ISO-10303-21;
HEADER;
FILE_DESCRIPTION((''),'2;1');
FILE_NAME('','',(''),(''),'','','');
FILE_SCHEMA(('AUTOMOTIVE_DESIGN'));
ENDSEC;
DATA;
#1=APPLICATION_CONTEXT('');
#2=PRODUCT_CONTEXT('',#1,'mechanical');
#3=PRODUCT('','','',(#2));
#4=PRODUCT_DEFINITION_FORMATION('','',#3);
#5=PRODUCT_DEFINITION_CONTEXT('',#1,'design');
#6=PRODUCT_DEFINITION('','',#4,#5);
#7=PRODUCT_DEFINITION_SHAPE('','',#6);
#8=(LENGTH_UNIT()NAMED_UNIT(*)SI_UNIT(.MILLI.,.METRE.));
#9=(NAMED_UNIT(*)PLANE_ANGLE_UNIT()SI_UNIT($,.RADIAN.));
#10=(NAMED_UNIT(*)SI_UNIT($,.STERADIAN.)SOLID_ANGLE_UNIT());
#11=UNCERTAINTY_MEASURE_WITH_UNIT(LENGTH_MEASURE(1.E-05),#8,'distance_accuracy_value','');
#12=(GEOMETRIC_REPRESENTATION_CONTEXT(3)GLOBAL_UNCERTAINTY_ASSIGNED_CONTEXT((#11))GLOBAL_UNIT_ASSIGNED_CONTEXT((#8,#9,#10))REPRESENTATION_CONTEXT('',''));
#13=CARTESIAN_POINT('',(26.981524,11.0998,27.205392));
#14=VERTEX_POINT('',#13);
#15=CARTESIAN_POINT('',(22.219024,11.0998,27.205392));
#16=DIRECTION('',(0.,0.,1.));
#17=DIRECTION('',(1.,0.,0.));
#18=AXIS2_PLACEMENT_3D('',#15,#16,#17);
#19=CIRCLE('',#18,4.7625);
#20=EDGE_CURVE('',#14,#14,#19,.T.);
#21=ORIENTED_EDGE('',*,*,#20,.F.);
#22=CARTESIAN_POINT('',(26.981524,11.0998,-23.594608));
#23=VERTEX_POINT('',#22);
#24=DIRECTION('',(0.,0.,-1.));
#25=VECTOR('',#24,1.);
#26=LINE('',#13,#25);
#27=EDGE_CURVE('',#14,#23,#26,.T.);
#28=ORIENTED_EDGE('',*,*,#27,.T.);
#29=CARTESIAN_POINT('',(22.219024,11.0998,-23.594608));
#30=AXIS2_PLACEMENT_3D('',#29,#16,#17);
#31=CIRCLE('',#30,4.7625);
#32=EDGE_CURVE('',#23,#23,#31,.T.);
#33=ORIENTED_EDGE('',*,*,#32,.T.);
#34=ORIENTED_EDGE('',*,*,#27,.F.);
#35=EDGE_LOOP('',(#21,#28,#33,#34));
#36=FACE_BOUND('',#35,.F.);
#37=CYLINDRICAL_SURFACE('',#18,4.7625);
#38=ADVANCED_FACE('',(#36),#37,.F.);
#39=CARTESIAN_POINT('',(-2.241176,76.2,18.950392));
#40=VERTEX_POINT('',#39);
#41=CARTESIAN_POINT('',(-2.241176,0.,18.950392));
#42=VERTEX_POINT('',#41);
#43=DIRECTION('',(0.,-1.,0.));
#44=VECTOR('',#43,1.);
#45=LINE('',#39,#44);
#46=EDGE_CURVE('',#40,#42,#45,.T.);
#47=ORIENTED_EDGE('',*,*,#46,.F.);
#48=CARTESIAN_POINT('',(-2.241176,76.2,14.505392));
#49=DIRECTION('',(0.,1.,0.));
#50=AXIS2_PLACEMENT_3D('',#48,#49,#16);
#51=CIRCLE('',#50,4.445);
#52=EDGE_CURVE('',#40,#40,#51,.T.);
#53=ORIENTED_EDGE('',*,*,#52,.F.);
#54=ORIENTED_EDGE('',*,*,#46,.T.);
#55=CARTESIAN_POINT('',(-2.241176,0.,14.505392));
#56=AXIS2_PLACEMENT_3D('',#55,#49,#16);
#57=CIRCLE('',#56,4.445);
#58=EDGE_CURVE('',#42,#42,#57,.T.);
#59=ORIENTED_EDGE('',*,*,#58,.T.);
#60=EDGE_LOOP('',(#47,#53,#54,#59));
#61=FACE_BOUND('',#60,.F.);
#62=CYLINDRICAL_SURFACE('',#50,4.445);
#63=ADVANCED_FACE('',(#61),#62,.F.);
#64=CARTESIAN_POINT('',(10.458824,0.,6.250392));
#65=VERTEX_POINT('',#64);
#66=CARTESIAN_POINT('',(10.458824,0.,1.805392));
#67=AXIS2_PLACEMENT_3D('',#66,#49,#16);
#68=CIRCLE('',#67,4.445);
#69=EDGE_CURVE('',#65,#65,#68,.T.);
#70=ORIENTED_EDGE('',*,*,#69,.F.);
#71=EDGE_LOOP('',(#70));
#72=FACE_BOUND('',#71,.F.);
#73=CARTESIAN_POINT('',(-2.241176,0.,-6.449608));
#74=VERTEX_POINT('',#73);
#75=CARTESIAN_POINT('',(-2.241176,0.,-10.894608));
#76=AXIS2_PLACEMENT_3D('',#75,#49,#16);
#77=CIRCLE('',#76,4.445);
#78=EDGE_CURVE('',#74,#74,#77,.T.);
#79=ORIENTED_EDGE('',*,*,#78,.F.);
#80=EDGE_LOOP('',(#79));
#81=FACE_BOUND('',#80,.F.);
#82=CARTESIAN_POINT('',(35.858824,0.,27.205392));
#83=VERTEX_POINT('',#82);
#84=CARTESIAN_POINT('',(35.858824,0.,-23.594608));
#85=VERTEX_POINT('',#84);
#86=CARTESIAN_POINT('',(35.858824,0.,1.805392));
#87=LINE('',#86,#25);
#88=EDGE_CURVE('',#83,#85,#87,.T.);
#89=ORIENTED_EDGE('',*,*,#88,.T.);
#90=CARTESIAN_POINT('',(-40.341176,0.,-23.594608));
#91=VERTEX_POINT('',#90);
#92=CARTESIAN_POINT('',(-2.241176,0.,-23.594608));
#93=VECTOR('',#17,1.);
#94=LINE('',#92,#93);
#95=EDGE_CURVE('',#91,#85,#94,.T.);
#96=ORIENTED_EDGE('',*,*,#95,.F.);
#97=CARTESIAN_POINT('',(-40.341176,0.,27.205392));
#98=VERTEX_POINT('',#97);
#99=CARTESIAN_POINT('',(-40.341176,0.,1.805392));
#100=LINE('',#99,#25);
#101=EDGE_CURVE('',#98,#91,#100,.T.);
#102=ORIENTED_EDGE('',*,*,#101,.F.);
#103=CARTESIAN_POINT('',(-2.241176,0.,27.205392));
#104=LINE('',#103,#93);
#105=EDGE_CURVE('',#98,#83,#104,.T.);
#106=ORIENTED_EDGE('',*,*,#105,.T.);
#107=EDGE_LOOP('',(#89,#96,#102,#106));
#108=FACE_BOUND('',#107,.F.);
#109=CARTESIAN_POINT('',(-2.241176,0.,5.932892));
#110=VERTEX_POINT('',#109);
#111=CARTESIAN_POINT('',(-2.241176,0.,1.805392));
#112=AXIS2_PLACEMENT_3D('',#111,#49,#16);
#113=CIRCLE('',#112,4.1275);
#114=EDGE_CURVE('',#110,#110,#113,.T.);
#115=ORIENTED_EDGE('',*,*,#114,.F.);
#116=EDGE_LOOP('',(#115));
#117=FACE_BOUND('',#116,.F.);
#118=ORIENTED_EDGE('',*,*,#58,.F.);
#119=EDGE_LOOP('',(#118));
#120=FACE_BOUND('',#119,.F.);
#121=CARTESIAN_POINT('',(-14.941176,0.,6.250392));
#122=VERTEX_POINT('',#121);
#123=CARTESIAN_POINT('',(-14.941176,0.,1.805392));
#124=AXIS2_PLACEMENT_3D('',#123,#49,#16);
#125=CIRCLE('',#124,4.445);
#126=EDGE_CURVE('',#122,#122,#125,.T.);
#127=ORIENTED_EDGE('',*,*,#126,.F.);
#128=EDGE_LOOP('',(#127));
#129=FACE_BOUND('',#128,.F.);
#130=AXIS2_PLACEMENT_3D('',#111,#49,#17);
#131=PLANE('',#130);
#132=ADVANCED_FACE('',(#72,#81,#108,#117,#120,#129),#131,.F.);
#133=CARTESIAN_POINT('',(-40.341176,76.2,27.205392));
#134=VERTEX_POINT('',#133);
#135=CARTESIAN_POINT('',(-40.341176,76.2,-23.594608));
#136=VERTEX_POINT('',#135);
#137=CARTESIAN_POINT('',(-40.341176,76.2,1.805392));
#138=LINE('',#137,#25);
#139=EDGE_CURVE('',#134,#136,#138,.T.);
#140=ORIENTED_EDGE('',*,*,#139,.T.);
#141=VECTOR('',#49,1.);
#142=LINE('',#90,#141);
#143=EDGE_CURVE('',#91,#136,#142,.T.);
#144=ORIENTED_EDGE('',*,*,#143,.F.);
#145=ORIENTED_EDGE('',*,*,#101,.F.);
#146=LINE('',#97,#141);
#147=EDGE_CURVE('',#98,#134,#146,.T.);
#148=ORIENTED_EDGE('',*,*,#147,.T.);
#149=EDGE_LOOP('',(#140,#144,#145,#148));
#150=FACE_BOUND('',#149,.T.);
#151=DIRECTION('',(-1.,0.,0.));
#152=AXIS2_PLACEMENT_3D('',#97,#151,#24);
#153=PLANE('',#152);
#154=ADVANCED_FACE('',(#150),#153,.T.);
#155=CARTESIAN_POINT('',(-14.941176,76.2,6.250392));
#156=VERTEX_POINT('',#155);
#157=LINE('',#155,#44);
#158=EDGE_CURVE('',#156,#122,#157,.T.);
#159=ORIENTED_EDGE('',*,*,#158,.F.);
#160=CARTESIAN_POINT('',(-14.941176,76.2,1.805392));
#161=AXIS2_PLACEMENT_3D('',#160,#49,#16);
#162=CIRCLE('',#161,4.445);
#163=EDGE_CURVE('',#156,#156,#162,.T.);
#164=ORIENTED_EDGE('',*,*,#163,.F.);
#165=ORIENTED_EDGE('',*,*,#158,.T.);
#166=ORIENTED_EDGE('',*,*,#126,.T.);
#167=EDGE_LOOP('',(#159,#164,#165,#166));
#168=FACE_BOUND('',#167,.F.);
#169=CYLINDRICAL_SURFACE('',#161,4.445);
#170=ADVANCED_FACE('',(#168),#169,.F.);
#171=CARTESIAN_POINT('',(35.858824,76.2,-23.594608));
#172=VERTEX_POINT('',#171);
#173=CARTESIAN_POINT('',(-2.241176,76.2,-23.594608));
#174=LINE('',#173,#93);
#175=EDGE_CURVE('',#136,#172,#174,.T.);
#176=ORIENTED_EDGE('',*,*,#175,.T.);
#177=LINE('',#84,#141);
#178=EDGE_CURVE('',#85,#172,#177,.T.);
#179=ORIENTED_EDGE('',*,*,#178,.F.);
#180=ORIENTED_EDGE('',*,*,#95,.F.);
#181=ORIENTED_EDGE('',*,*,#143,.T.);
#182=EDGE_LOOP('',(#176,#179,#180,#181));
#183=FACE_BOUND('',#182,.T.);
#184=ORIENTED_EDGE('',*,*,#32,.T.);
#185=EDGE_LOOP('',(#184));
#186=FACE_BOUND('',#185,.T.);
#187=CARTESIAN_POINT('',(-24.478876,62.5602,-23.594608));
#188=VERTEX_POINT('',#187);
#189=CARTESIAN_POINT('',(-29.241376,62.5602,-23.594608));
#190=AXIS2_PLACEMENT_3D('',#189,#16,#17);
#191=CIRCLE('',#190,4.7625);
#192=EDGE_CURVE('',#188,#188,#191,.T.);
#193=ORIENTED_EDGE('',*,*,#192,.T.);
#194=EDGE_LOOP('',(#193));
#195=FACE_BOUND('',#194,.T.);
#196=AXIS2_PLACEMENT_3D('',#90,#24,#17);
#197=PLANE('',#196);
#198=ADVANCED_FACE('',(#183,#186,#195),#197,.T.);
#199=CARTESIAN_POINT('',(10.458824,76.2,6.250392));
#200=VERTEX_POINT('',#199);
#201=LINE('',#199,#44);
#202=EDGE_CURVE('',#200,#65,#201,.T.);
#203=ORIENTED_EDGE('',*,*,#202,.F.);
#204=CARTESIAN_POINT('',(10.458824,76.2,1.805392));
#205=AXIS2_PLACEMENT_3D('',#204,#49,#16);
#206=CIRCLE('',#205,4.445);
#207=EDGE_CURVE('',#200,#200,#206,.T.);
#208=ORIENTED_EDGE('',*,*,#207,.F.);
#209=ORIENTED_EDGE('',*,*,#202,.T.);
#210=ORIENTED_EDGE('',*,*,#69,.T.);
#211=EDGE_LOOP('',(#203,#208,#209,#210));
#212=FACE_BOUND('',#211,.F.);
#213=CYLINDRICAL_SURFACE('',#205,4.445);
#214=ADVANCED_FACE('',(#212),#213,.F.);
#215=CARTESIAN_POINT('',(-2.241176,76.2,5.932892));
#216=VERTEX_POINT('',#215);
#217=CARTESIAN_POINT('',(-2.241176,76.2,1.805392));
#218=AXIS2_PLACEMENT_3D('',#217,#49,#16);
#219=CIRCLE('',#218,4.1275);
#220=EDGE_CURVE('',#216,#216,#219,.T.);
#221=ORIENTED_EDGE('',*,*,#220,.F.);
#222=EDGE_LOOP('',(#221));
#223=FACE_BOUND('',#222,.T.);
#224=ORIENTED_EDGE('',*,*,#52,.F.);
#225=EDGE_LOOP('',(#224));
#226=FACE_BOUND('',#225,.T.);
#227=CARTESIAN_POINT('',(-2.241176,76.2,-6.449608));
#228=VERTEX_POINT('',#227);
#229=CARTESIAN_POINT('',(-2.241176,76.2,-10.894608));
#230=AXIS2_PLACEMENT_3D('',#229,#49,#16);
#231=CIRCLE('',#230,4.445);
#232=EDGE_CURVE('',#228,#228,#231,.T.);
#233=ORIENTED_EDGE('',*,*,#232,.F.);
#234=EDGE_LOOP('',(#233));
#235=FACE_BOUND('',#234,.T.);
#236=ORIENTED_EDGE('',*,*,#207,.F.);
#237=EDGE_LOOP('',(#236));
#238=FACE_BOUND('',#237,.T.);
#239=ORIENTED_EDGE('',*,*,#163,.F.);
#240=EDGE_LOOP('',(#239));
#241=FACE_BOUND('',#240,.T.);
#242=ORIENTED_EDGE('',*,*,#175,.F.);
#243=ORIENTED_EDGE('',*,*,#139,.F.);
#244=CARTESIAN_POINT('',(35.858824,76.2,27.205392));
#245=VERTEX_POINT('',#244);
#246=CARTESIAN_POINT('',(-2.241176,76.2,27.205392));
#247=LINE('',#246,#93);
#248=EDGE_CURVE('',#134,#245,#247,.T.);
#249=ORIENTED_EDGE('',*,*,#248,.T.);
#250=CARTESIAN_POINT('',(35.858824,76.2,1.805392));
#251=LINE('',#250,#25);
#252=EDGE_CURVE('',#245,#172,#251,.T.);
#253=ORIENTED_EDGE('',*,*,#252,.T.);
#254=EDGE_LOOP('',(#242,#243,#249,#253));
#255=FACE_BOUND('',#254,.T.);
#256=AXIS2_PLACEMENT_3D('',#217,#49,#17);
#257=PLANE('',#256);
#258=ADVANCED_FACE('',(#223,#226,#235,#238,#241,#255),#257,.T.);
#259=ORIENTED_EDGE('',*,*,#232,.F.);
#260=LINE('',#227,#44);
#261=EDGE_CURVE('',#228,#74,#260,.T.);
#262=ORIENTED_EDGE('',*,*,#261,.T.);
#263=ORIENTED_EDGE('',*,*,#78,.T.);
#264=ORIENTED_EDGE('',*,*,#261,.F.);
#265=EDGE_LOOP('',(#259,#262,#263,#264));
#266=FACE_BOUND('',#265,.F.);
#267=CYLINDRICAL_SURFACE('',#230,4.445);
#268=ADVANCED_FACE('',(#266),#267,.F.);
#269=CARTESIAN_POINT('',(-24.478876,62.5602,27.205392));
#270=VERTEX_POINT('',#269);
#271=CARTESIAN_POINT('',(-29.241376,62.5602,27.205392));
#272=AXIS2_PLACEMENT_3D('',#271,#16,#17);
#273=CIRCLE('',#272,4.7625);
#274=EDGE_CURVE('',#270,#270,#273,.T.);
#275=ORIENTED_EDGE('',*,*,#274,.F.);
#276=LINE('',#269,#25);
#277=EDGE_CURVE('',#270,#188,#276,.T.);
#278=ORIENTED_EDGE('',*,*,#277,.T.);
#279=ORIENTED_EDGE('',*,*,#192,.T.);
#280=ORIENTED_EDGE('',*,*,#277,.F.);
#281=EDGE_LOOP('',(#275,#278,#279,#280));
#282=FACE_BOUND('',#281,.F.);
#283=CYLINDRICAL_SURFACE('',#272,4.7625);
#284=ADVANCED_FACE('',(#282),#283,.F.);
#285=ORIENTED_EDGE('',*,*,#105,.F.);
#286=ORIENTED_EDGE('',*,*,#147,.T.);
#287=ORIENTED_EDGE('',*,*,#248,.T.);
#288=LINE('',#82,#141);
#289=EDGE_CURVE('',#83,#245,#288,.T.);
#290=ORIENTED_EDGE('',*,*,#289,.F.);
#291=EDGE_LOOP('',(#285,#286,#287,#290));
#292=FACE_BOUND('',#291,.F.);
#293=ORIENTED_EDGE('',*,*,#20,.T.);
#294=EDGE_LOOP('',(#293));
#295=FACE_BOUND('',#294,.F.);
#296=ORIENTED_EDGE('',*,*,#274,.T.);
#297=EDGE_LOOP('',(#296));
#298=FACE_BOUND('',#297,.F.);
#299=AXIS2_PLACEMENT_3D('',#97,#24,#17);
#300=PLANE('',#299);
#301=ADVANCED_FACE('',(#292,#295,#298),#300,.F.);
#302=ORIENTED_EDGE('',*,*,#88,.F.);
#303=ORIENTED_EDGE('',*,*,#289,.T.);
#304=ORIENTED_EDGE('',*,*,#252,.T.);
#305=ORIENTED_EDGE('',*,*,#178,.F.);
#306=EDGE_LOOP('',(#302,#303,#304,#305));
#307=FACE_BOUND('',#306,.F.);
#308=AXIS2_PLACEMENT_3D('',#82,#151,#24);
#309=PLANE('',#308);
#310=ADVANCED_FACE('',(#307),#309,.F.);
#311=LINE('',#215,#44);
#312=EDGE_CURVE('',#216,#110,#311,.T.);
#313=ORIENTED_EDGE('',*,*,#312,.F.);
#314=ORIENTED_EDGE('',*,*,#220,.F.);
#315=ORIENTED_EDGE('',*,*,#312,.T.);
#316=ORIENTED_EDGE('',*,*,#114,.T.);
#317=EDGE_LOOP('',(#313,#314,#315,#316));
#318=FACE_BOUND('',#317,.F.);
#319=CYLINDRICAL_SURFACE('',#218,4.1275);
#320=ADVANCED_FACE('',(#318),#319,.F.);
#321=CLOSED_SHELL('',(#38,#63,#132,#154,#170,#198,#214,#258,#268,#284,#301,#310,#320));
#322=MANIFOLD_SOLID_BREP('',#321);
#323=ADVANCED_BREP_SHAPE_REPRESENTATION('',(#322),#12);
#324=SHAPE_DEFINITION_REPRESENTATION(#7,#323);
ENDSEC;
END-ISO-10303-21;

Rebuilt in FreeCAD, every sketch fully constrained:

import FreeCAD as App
import Part
import Sketcher

V = App.Vector
Q = App.Units.Quantity

doc = App.newDocument("Part")
body = doc.addObject("PartDesign::Body", "Body")

# Sketch on XZ plane
sketch1 = body.newObject("Sketcher::SketchObject", "Sketch")
sketch1.AttachmentSupport = (doc.getObject("XZ_Plane"), [""])
sketch1.MapMode = "FlatFace"
sketch1.addGeometry(Part.LineSegment(V(-40, -24, 0), V(-40, 27, 0)), False)
sketch1.addGeometry(Part.LineSegment(V(-40, 27, 0), V(36, 27, 0)), False)
sketch1.addGeometry(Part.LineSegment(V(36, 27, 0), V(36, -24, 0)), False)
sketch1.addGeometry(Part.LineSegment(V(36, -24, 0), V(-40, -24, 0)), False)
sketch1.addConstraint(Sketcher.Constraint("Coincident", 0, 2, 1, 1))
sketch1.addConstraint(Sketcher.Constraint("Coincident", 1, 2, 2, 1))
sketch1.addConstraint(Sketcher.Constraint("Coincident", 2, 2, 3, 1))
sketch1.addConstraint(Sketcher.Constraint("Coincident", 3, 2, 0, 1))
sketch1.addConstraint(Sketcher.Constraint("Vertical", 0))
sketch1.addConstraint(Sketcher.Constraint("Horizontal", 1))
sketch1.addConstraint(Sketcher.Constraint("Vertical", 2))
sketch1.addConstraint(Sketcher.Constraint("Horizontal", 3))
sketch1.addConstraint(Sketcher.Constraint("DistanceX", 1, 1, 1, 2, Q("3 in")))
sketch1.addConstraint(Sketcher.Constraint("DistanceY", 0, 1, 0, 2, Q("2 in")))
sketch1.addConstraint(Sketcher.Constraint("DistanceX", 0, 2, -1, 1, Q("40.341176 mm")))
sketch1.addConstraint(Sketcher.Constraint("DistanceY", -1, 1, 0, 2, Q("27.205392 mm")))
pad1 = body.newObject("PartDesign::Pad", "Pad")
pad1.Profile = sketch1
pad1.Length = Q("3 in")
pad1.Reversed = True

# Sketch on XZ plane
sketch2 = body.newObject("Sketcher::SketchObject", "Sketch001")
sketch2.AttachmentSupport = (doc.getObject("XZ_Plane"), [""])
sketch2.MapMode = "FlatFace"
sketch2.AttachmentOffset = App.Placement(V(0, 0, -3 * 25.4), App.Rotation())
sketch2.addGeometry(Part.Circle(V(-2.2, 1.8, 0), V(0, 0, 1), 4.1), False)
sketch2.addConstraint(Sketcher.Constraint("Diameter", 0, Q("0.325 in")))
sketch2.addConstraint(Sketcher.Constraint("DistanceX", 0, 3, -1, 1, Q("2.241176 mm")))
sketch2.addConstraint(Sketcher.Constraint("DistanceY", -1, 1, 0, 3, Q("1.805392 mm")))
pocket1 = body.newObject("PartDesign::Pocket", "Pocket")
pocket1.Profile = sketch2
pocket1.Length = Q("3 in")
pocket1.Reversed = True

# Sketch on XZ plane
sketch3 = body.newObject("Sketcher::SketchObject", "Sketch002")
sketch3.AttachmentSupport = (doc.getObject("XZ_Plane"), [""])
sketch3.MapMode = "FlatFace"
sketch3.AttachmentOffset = App.Placement(V(0, 0, -3 * 25.4), App.Rotation())
sketch3.addGeometry(Part.Circle(V(-14.9, 1.8, 0), V(0, 0, 1), 4.4), False)
sketch3.addConstraint(Sketcher.Constraint("Diameter", 0, Q("0.35 in")))
sketch3.addConstraint(Sketcher.Constraint("DistanceX", 0, 3, -1, 1, Q("14.941176 mm")))
sketch3.addConstraint(Sketcher.Constraint("DistanceY", -1, 1, 0, 3, Q("1.805392 mm")))
pocket2 = body.newObject("PartDesign::Pocket", "Pocket001")
pocket2.Profile = sketch3
pocket2.Length = Q("3 in")
pocket2.Reversed = True

# Sketch on XZ plane
sketch4 = body.newObject("Sketcher::SketchObject", "Sketch003")
sketch4.AttachmentSupport = (doc.getObject("XZ_Plane"), [""])
sketch4.MapMode = "FlatFace"
sketch4.AttachmentOffset = App.Placement(V(0, 0, -3 * 25.4), App.Rotation())
sketch4.addGeometry(Part.Circle(V(10.5, 1.8, 0), V(0, 0, 1), 4.4), False)
sketch4.addConstraint(Sketcher.Constraint("Diameter", 0, Q("0.35 in")))
sketch4.addConstraint(Sketcher.Constraint("DistanceX", -1, 1, 0, 3, Q("10.458824 mm")))
sketch4.addConstraint(Sketcher.Constraint("DistanceY", -1, 1, 0, 3, Q("1.805392 mm")))
pocket3 = body.newObject("PartDesign::Pocket", "Pocket002")
pocket3.Profile = sketch4
pocket3.Length = Q("3 in")
pocket3.Reversed = True

# Sketch on XZ plane
sketch5 = body.newObject("Sketcher::SketchObject", "Sketch004")
sketch5.AttachmentSupport = (doc.getObject("XZ_Plane"), [""])
sketch5.MapMode = "FlatFace"
sketch5.AttachmentOffset = App.Placement(V(0, 0, -3 * 25.4), App.Rotation())
sketch5.addGeometry(Part.Circle(V(-2.2, 14.5, 0), V(0, 0, 1), 4.4), False)
sketch5.addConstraint(Sketcher.Constraint("Diameter", 0, Q("0.35 in")))
sketch5.addConstraint(Sketcher.Constraint("DistanceX", 0, 3, -1, 1, Q("2.241176 mm")))
sketch5.addConstraint(Sketcher.Constraint("DistanceY", -1, 1, 0, 3, Q("14.505392 mm")))
pocket4 = body.newObject("PartDesign::Pocket", "Pocket003")
pocket4.Profile = sketch5
pocket4.Length = Q("3 in")
pocket4.Reversed = True

# Sketch on XZ plane
sketch6 = body.newObject("Sketcher::SketchObject", "Sketch005")
sketch6.AttachmentSupport = (doc.getObject("XZ_Plane"), [""])
sketch6.MapMode = "FlatFace"
sketch6.AttachmentOffset = App.Placement(V(0, 0, -3 * 25.4), App.Rotation())
sketch6.addGeometry(Part.Circle(V(-2.2, -10.9, 0), V(0, 0, 1), 4.4), False)
sketch6.addConstraint(Sketcher.Constraint("Diameter", 0, Q("0.35 in")))
sketch6.addConstraint(Sketcher.Constraint("DistanceX", 0, 3, -1, 1, Q("2.241176 mm")))
sketch6.addConstraint(Sketcher.Constraint("DistanceY", 0, 3, -1, 1, Q("10.894608 mm")))
pocket5 = body.newObject("PartDesign::Pocket", "Pocket004")
pocket5.Profile = sketch6
pocket5.Length = Q("3 in")
pocket5.Reversed = True

# Sketch on XY plane
sketch7 = body.newObject("Sketcher::SketchObject", "Sketch006")
sketch7.AttachmentSupport = (doc.getObject("XY_Plane"), [""])
sketch7.MapMode = "FlatFace"
sketch7.AttachmentOffset = App.Placement(V(0, 0, 27.205392), App.Rotation())
sketch7.addGeometry(Part.Circle(V(-29.2, 62.6, 0), V(0, 0, 1), 4.8), False)
sketch7.addConstraint(Sketcher.Constraint("Diameter", 0, Q("0.375 in")))
sketch7.addConstraint(Sketcher.Constraint("DistanceY", -1, 1, 0, 3, Q("2.463 in")))
sketch7.addConstraint(Sketcher.Constraint("DistanceX", 0, 3, -1, 1, Q("29.241376 mm")))
pocket6 = body.newObject("PartDesign::Pocket", "Pocket005")
pocket6.Profile = sketch7
pocket6.Length = Q("3 in")

# Sketch on XY plane
sketch8 = body.newObject("Sketcher::SketchObject", "Sketch007")
sketch8.AttachmentSupport = (doc.getObject("XY_Plane"), [""])
sketch8.MapMode = "FlatFace"
sketch8.AttachmentOffset = App.Placement(V(0, 0, 27.205392), App.Rotation())
sketch8.addGeometry(Part.Circle(V(22.2, 11.1, 0), V(0, 0, 1), 4.8), False)
sketch8.addConstraint(Sketcher.Constraint("Diameter", 0, Q("0.375 in")))
sketch8.addConstraint(Sketcher.Constraint("DistanceY", -1, 1, 0, 3, Q("0.437 in")))
sketch8.addConstraint(Sketcher.Constraint("DistanceX", -1, 1, 0, 3, Q("22.219024 mm")))
pocket7 = body.newObject("PartDesign::Pocket", "Pocket006")
pocket7.Profile = sketch8
pocket7.Length = Q("3 in")

doc.recompute()
